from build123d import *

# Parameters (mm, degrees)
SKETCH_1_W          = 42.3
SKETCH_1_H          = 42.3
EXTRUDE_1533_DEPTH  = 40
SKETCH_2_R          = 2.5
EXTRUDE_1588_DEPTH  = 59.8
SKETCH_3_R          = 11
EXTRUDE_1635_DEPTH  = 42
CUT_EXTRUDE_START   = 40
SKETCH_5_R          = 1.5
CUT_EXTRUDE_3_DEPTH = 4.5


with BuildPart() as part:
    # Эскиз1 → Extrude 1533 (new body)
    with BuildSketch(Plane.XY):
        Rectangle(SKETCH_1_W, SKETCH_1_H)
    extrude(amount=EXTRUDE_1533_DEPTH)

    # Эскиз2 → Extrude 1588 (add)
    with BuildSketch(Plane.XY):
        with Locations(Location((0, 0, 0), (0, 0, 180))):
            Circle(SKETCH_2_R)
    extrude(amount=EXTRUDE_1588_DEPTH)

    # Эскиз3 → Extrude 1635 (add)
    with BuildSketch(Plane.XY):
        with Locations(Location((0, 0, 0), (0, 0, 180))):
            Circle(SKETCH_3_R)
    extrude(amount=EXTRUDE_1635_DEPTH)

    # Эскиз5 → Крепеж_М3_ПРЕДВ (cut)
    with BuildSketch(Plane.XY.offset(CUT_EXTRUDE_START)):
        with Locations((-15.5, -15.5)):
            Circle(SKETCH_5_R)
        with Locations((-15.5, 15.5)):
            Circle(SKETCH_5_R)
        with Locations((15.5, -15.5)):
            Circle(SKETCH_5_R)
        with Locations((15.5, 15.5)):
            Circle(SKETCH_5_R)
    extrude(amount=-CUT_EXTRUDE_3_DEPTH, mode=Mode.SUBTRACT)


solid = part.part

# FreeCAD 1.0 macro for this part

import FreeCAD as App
import Part
import Sketcher

V = App.Vector

doc = App.newDocument("Part")
params = doc.addObject("Spreadsheet::Sheet", "Params")
for row, (alias, value) in enumerate([
    ("sketch1_width", "42.3 mm"),
    ("pad1_length", "40 mm"),
    ("sketch2_diameter", "5 mm"),
    ("pad2_length", "59.8 mm"),
    ("sketch3_diameter", "22 mm"),
    ("pad3_length", "42 mm"),
    ("sketch4_diameter", "3 mm"),
    ("pocket1_length", "4.5 mm"),
], start=1):
    params.set(f"A{row}", alias)
    params.set(f"B{row}", "=" + value)
    params.setAlias(f"B{row}", alias)

body = doc.addObject("PartDesign::Body", "Body")

sketch1 = doc.addObject("Sketcher::SketchObject", "Sketch")
body.addObject(sketch1)
sketch1.AttachmentSupport = (doc.XY_Plane, [""])
sketch1.MapMode = "FlatFace"
sketch1.addGeometry(Part.LineSegment(V(-21.15, 21.15, 0), V(-21.15, -21.15, 0)), False)
sketch1.addGeometry(Part.LineSegment(V(-21.15, -21.15, 0), V(21.15, -21.15, 0)), False)
sketch1.addGeometry(Part.LineSegment(V(21.15, -21.15, 0), V(21.15, 21.15, 0)), False)
sketch1.addGeometry(Part.LineSegment(V(21.15, 21.15, 0), V(-21.15, 21.15, 0)), False)
sketch1.addConstraint(Sketcher.Constraint("Coincident", 0, 2, 1, 1))
sketch1.addConstraint(Sketcher.Constraint("Coincident", 1, 2, 2, 1))
sketch1.addConstraint(Sketcher.Constraint("Coincident", 2, 2, 3, 1))
sketch1.addConstraint(Sketcher.Constraint("Coincident", 3, 2, 0, 1))
sketch1.addConstraint(Sketcher.Constraint("Vertical", 0))
sketch1.addConstraint(Sketcher.Constraint("Horizontal", 1))
sketch1.addConstraint(Sketcher.Constraint("Vertical", 2))
sketch1.addConstraint(Sketcher.Constraint("Horizontal", 3))
sketch1.addConstraint(Sketcher.Constraint("Symmetric", 0, 2, 2, 2, -1, 1))
sketch1.addConstraint(Sketcher.Constraint("Equal", 3, 0))
sketch1.addConstraint(Sketcher.Constraint("DistanceX", 1, 1, 1, 2, 42.3))
sketch1.setExpression("Constraints[10]", "Params.sketch1_width")
pad1 = doc.addObject("PartDesign::Pad", "Pad")
body.addObject(pad1)
pad1.Profile = sketch1
pad1.setExpression("Length", "Params.pad1_length")

sketch2 = doc.addObject("Sketcher::SketchObject", "Sketch001")
body.addObject(sketch2)
sketch2.AttachmentSupport = (doc.XY_Plane, [""])
sketch2.MapMode = "FlatFace"
sketch2.addGeometry(Part.Circle(V(0, 0, 0), V(0, 0, 1), 2.5), False)
sketch2.addConstraint(Sketcher.Constraint("Coincident", 0, 3, -1, 1))
sketch2.addConstraint(Sketcher.Constraint("Diameter", 0, 5.0))
sketch2.setExpression("Constraints[1]", "Params.sketch2_diameter")
pad2 = doc.addObject("PartDesign::Pad", "Pad001")
body.addObject(pad2)
pad2.Profile = sketch2
pad2.setExpression("Length", "Params.pad2_length")

sketch3 = doc.addObject("Sketcher::SketchObject", "Sketch002")
body.addObject(sketch3)
sketch3.AttachmentSupport = (doc.XY_Plane, [""])
sketch3.MapMode = "FlatFace"
sketch3.addGeometry(Part.Circle(V(0, 0, 0), V(0, 0, 1), 11), False)
sketch3.addConstraint(Sketcher.Constraint("Coincident", 0, 3, -1, 1))
sketch3.addConstraint(Sketcher.Constraint("Diameter", 0, 22.0))
sketch3.setExpression("Constraints[1]", "Params.sketch3_diameter")
pad3 = doc.addObject("PartDesign::Pad", "Pad002")
body.addObject(pad3)
pad3.Profile = sketch3
pad3.setExpression("Length", "Params.pad3_length")

sketch4 = doc.addObject("Sketcher::SketchObject", "Sketch003")
body.addObject(sketch4)
sketch4.AttachmentSupport = (doc.XY_Plane, [""])
sketch4.MapMode = "FlatFace"
sketch4.AttachmentOffset = App.Placement(V(0, 0, 40), App.Rotation())
sketch4.addGeometry(Part.Circle(V(-15.5, -15.5, 0), V(0, 0, 1), 1.5), False)
sketch4.addGeometry(Part.Circle(V(-15.5, 15.5, 0), V(0, 0, 1), 1.5), False)
sketch4.addGeometry(Part.Circle(V(15.5, -15.5, 0), V(0, 0, 1), 1.5), False)
sketch4.addGeometry(Part.Circle(V(15.5, 15.5, 0), V(0, 0, 1), 1.5), False)
sketch4.addConstraint(Sketcher.Constraint("Equal", 0, 1))
sketch4.addConstraint(Sketcher.Constraint("Equal", 1, 2))
sketch4.addConstraint(Sketcher.Constraint("Equal", 2, 3))
sketch4.addConstraint(Sketcher.Constraint("Symmetric", 1, 3, 2, 3, -1, 1))
sketch4.addConstraint(Sketcher.Constraint("Symmetric", 0, 3, 3, 3, -1, 1))
sketch4.addConstraint(Sketcher.Constraint("Symmetric", 0, 3, 2, 3, -2))
sketch4.addConstraint(Sketcher.Constraint("Diameter", 0, 3.0))
sketch4.addConstraint(Sketcher.Constraint("DistanceY", 0, 3, 1, 3, 31.0))
sketch4.addConstraint(Sketcher.Constraint("DistanceX", 0, 3, 2, 3, 31.0))
sketch4.setExpression("Constraints[6]", "Params.sketch4_diameter")
pocket1 = doc.addObject("PartDesign::Pocket", "Pocket")
body.addObject(pocket1)
pocket1.Profile = sketch4
pocket1.setExpression("Length", "Params.pocket1_length")

doc.recompute()
